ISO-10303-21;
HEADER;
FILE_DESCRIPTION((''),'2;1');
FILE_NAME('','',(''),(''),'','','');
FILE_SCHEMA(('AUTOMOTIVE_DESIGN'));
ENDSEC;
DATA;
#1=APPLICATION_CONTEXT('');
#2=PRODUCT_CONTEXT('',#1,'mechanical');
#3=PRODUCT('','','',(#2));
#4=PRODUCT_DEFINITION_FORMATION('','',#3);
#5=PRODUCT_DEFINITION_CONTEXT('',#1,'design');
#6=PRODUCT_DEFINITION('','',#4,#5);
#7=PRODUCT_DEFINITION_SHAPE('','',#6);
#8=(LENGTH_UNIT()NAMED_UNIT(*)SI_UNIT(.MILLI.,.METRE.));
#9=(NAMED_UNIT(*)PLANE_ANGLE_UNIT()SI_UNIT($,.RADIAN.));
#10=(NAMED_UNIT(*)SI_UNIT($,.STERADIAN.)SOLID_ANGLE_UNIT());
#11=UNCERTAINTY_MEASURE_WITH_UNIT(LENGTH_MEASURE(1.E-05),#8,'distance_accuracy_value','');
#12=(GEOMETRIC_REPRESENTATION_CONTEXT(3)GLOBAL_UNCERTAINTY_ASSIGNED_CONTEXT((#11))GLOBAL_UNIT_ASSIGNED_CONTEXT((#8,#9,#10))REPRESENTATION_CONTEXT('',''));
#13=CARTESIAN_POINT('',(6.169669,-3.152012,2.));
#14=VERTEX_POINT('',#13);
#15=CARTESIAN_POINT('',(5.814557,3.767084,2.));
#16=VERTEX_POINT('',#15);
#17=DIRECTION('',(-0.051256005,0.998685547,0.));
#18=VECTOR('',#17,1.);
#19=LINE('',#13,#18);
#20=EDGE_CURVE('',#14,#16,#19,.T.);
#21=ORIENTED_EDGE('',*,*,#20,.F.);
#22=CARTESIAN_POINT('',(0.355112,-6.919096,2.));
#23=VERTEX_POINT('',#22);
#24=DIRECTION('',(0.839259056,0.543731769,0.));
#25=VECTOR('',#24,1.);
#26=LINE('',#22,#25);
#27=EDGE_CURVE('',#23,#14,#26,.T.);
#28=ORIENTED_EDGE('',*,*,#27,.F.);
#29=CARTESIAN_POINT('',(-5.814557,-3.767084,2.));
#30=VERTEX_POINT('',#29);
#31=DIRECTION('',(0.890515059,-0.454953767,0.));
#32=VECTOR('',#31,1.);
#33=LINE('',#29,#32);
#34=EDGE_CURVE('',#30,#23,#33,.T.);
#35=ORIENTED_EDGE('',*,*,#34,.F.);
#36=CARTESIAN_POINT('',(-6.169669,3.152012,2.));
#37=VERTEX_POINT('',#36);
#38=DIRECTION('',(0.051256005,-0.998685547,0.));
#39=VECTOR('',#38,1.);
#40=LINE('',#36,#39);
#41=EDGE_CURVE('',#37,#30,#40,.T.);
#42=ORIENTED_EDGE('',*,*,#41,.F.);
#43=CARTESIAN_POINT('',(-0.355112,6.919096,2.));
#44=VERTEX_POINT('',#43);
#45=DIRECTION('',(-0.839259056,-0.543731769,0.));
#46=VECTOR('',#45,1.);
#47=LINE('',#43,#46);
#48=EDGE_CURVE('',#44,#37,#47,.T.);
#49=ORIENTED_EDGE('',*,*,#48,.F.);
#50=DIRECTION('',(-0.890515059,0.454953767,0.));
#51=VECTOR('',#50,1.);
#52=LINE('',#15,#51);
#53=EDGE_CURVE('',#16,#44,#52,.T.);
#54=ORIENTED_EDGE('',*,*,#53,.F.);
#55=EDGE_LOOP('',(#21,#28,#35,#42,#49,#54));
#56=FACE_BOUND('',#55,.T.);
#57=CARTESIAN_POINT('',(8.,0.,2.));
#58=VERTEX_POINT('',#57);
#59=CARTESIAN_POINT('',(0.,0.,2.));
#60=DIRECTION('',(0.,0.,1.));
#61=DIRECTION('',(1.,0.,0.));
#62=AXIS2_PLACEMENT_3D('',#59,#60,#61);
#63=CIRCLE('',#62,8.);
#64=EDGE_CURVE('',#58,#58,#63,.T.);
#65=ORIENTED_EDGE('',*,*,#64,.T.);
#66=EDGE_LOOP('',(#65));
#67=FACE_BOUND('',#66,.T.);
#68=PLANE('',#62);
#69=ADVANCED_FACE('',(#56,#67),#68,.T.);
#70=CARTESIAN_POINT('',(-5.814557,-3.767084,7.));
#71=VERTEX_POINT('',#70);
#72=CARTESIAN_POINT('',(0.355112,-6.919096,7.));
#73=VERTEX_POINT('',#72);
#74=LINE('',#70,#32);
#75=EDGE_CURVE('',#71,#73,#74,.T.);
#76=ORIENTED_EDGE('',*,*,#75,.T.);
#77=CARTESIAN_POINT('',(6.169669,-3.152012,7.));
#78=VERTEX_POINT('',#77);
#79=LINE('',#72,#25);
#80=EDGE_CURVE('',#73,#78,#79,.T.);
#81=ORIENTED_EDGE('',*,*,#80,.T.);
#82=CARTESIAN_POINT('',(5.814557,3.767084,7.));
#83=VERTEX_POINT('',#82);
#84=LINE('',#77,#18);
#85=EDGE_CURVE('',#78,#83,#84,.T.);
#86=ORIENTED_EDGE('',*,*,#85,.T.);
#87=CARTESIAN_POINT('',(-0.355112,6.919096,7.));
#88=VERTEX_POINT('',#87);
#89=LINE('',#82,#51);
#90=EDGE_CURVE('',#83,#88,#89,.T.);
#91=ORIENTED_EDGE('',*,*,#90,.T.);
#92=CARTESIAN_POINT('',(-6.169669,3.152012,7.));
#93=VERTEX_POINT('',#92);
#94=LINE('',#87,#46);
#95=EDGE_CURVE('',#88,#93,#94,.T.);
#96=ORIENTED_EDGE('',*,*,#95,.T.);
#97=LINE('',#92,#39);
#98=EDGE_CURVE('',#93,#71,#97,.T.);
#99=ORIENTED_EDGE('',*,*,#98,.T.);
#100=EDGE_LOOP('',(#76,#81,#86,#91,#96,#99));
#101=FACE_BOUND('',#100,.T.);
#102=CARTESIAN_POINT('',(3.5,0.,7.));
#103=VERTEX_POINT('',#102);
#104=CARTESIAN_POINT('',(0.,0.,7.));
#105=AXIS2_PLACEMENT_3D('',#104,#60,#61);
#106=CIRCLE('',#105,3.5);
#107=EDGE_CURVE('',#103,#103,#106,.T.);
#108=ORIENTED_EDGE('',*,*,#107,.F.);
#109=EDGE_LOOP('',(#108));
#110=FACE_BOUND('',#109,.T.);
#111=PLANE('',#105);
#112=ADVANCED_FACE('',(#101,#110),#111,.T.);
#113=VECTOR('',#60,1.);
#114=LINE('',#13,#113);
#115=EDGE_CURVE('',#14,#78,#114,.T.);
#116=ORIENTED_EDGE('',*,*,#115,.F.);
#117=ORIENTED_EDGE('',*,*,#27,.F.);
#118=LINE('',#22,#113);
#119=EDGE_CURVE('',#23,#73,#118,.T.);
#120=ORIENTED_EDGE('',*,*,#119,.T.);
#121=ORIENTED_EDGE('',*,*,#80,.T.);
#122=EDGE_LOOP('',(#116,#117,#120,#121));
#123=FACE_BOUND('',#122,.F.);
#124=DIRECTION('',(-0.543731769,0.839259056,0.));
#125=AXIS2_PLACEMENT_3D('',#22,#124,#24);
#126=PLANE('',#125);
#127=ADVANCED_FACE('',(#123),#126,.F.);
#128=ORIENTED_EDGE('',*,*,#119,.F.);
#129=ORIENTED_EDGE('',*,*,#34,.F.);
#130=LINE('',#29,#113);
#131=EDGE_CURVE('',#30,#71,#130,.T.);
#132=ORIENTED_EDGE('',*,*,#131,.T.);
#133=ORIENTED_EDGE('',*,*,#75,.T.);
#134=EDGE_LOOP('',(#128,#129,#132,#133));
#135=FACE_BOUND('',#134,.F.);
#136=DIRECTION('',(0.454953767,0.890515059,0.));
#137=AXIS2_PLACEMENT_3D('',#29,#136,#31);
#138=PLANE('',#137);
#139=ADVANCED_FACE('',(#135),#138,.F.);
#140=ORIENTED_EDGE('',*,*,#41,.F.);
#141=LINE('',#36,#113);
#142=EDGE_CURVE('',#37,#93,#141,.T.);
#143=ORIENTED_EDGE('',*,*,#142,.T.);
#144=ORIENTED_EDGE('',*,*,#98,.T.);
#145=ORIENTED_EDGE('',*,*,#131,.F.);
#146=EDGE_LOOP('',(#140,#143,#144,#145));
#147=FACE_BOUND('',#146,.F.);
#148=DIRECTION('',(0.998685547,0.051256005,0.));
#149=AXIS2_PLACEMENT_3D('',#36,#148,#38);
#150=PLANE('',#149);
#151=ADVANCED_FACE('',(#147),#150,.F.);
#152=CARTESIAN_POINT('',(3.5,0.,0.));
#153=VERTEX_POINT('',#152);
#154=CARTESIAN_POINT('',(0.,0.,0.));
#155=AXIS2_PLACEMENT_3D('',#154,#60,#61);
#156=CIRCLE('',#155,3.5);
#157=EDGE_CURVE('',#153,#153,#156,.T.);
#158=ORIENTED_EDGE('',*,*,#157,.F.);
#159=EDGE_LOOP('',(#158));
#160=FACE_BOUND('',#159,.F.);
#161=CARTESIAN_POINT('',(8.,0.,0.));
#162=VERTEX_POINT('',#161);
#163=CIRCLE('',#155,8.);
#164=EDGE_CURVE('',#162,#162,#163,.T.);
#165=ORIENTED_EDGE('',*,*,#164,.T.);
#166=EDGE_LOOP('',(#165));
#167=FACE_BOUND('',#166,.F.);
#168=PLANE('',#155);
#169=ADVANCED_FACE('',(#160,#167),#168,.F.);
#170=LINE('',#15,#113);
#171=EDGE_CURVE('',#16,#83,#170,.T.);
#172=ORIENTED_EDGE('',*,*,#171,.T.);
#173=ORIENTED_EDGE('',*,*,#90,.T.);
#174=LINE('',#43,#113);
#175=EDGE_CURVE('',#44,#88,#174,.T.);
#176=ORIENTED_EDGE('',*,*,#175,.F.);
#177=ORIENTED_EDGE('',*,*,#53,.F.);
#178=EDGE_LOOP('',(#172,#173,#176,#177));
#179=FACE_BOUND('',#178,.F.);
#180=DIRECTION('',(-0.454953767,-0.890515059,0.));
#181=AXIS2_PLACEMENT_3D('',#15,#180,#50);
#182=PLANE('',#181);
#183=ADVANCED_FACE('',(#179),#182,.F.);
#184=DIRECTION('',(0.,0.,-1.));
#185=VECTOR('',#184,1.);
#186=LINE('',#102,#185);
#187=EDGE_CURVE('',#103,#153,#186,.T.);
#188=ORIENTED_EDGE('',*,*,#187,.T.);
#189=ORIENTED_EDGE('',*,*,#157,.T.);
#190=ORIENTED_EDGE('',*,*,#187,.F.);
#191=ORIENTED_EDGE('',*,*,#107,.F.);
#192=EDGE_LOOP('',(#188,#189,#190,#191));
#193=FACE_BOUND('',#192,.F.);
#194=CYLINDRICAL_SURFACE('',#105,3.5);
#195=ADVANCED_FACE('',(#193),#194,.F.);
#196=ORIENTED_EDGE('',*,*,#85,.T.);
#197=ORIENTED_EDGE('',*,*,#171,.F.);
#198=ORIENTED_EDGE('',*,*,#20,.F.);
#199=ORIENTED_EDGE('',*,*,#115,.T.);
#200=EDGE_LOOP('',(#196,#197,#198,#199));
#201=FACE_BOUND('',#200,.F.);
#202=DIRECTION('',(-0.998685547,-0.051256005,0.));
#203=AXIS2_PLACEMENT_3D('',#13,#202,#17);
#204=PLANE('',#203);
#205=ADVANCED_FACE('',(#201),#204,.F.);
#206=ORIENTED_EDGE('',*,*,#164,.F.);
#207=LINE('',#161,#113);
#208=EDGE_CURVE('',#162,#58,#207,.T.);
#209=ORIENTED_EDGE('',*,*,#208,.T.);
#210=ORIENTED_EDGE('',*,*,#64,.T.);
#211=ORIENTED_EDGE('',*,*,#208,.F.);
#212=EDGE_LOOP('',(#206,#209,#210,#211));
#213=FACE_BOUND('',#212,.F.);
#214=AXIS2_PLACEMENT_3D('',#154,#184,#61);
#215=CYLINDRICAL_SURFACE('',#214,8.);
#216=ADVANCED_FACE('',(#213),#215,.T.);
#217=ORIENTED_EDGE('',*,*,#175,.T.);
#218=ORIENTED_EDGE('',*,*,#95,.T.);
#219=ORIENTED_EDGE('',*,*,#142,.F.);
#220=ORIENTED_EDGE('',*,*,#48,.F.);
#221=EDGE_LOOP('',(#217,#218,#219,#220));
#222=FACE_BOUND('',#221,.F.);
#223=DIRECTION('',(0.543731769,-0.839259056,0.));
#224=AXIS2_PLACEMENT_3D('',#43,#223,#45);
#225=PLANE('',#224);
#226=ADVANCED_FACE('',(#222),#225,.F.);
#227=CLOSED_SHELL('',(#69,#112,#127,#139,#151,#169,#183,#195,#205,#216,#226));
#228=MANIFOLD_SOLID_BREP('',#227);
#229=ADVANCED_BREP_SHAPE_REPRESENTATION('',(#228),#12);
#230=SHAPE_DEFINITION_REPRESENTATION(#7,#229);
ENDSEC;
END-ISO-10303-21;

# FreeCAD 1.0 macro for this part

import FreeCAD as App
import Part
import Sketcher

doc = App.newDocument("Part")
body = doc.addObject("PartDesign::Body", "Body")

sketch1 = body.newObject("Sketcher::SketchObject", "Sketch")
sketch1.AttachmentSupport = (doc.getObject("XY_Plane"), [""])
sketch1.MapMode = "FlatFace"
sketch1.addGeometry(Part.Circle(App.Vector(0, 0, 0), App.Vector(0, 0, 1), 8), False)
sketch1.addConstraint(Sketcher.Constraint("Coincident", 0, 3, -1, 1))
sketch1.addConstraint(Sketcher.Constraint("Diameter", 0, 16.0))
pad1 = body.newObject("PartDesign::Pad", "Pad")
pad1.Profile = sketch1
pad1.Length = 2

sketch2 = body.newObject("Sketcher::SketchObject", "Sketch001")
sketch2.AttachmentSupport = (doc.getObject("XY_Plane"), [""])
sketch2.MapMode = "FlatFace"
sketch2.AttachmentOffset = App.Placement(App.Vector(0, 0, 2), App.Rotation())
sketch2.addGeometry(Part.LineSegment(App.Vector(6, 4, 0), App.Vector(0, 7, 0)), False)
sketch2.addGeometry(Part.LineSegment(App.Vector(0, 7, 0), App.Vector(-6, 3, 0)), False)
sketch2.addGeometry(Part.LineSegment(App.Vector(-6, 3, 0), App.Vector(-6, -4, 0)), False)
sketch2.addGeometry(Part.LineSegment(App.Vector(-6, -4, 0), App.Vector(0, -7, 0)), False)
sketch2.addGeometry(Part.LineSegment(App.Vector(0, -7, 0), App.Vector(6, -3, 0)), False)
sketch2.addGeometry(Part.LineSegment(App.Vector(6, -3, 0), App.Vector(6, 4, 0)), False)
sketch2.addConstraint(Sketcher.Constraint("Coincident", 0, 2, 1, 1))
sketch2.addConstraint(Sketcher.Constraint("Coincident", 1, 2, 2, 1))
sketch2.addConstraint(Sketcher.Constraint("Coincident", 2, 2, 3, 1))
sketch2.addConstraint(Sketcher.Constraint("Coincident", 3, 2, 4, 1))
sketch2.addConstraint(Sketcher.Constraint("Coincident", 4, 2, 5, 1))
sketch2.addConstraint(Sketcher.Constraint("Coincident", 5, 2, 0, 1))
sketch2.addConstraint(Sketcher.Constraint("Symmetric", 0, 2, 3, 2, -1, 1))
sketch2.addConstraint(Sketcher.Constraint("Symmetric", 1, 2, 4, 2, -1, 1))
sketch2.addConstraint(Sketcher.Constraint("Symmetric", 2, 2, 5, 2, -1, 1))
sketch2.addConstraint(Sketcher.Constraint("Equal", 0, 1))
sketch2.addConstraint(Sketcher.Constraint("Equal", 1, 2))
sketch2.addConstraint(Sketcher.Constraint("DistanceX", 1, 2, -1, 1, 6.169669))
sketch2.addConstraint(Sketcher.Constraint("DistanceY", -1, 1, 1, 2, 3.152012))
sketch2.addConstraint(Sketcher.Constraint("DistanceY", 2, 2, 0, 2, 10.68618))
sketch2.addConstraint(Sketcher.Constraint("DistanceX", 2, 2, 3, 2, 6.169669))
pad2 = body.newObject("PartDesign::Pad", "Pad001")
pad2.Profile = sketch2
pad2.Length = 5

sketch3 = body.newObject("Sketcher::SketchObject", "Sketch002")
sketch3.AttachmentSupport = (doc.getObject("XY_Plane"), [""])
sketch3.MapMode = "FlatFace"
sketch3.AttachmentOffset = App.Placement(App.Vector(0, 0, 7), App.Rotation())
sketch3.addGeometry(Part.Circle(App.Vector(0, 0, 0), App.Vector(0, 0, 1), 3.5), False)
sketch3.addConstraint(Sketcher.Constraint("Coincident", 0, 3, -1, 1))
sketch3.addConstraint(Sketcher.Constraint("Diameter", 0, 7.0))
pocket1 = body.newObject("PartDesign::Pocket", "Pocket")
pocket1.Profile = sketch3
pocket1.Length = 25

doc.recompute()
